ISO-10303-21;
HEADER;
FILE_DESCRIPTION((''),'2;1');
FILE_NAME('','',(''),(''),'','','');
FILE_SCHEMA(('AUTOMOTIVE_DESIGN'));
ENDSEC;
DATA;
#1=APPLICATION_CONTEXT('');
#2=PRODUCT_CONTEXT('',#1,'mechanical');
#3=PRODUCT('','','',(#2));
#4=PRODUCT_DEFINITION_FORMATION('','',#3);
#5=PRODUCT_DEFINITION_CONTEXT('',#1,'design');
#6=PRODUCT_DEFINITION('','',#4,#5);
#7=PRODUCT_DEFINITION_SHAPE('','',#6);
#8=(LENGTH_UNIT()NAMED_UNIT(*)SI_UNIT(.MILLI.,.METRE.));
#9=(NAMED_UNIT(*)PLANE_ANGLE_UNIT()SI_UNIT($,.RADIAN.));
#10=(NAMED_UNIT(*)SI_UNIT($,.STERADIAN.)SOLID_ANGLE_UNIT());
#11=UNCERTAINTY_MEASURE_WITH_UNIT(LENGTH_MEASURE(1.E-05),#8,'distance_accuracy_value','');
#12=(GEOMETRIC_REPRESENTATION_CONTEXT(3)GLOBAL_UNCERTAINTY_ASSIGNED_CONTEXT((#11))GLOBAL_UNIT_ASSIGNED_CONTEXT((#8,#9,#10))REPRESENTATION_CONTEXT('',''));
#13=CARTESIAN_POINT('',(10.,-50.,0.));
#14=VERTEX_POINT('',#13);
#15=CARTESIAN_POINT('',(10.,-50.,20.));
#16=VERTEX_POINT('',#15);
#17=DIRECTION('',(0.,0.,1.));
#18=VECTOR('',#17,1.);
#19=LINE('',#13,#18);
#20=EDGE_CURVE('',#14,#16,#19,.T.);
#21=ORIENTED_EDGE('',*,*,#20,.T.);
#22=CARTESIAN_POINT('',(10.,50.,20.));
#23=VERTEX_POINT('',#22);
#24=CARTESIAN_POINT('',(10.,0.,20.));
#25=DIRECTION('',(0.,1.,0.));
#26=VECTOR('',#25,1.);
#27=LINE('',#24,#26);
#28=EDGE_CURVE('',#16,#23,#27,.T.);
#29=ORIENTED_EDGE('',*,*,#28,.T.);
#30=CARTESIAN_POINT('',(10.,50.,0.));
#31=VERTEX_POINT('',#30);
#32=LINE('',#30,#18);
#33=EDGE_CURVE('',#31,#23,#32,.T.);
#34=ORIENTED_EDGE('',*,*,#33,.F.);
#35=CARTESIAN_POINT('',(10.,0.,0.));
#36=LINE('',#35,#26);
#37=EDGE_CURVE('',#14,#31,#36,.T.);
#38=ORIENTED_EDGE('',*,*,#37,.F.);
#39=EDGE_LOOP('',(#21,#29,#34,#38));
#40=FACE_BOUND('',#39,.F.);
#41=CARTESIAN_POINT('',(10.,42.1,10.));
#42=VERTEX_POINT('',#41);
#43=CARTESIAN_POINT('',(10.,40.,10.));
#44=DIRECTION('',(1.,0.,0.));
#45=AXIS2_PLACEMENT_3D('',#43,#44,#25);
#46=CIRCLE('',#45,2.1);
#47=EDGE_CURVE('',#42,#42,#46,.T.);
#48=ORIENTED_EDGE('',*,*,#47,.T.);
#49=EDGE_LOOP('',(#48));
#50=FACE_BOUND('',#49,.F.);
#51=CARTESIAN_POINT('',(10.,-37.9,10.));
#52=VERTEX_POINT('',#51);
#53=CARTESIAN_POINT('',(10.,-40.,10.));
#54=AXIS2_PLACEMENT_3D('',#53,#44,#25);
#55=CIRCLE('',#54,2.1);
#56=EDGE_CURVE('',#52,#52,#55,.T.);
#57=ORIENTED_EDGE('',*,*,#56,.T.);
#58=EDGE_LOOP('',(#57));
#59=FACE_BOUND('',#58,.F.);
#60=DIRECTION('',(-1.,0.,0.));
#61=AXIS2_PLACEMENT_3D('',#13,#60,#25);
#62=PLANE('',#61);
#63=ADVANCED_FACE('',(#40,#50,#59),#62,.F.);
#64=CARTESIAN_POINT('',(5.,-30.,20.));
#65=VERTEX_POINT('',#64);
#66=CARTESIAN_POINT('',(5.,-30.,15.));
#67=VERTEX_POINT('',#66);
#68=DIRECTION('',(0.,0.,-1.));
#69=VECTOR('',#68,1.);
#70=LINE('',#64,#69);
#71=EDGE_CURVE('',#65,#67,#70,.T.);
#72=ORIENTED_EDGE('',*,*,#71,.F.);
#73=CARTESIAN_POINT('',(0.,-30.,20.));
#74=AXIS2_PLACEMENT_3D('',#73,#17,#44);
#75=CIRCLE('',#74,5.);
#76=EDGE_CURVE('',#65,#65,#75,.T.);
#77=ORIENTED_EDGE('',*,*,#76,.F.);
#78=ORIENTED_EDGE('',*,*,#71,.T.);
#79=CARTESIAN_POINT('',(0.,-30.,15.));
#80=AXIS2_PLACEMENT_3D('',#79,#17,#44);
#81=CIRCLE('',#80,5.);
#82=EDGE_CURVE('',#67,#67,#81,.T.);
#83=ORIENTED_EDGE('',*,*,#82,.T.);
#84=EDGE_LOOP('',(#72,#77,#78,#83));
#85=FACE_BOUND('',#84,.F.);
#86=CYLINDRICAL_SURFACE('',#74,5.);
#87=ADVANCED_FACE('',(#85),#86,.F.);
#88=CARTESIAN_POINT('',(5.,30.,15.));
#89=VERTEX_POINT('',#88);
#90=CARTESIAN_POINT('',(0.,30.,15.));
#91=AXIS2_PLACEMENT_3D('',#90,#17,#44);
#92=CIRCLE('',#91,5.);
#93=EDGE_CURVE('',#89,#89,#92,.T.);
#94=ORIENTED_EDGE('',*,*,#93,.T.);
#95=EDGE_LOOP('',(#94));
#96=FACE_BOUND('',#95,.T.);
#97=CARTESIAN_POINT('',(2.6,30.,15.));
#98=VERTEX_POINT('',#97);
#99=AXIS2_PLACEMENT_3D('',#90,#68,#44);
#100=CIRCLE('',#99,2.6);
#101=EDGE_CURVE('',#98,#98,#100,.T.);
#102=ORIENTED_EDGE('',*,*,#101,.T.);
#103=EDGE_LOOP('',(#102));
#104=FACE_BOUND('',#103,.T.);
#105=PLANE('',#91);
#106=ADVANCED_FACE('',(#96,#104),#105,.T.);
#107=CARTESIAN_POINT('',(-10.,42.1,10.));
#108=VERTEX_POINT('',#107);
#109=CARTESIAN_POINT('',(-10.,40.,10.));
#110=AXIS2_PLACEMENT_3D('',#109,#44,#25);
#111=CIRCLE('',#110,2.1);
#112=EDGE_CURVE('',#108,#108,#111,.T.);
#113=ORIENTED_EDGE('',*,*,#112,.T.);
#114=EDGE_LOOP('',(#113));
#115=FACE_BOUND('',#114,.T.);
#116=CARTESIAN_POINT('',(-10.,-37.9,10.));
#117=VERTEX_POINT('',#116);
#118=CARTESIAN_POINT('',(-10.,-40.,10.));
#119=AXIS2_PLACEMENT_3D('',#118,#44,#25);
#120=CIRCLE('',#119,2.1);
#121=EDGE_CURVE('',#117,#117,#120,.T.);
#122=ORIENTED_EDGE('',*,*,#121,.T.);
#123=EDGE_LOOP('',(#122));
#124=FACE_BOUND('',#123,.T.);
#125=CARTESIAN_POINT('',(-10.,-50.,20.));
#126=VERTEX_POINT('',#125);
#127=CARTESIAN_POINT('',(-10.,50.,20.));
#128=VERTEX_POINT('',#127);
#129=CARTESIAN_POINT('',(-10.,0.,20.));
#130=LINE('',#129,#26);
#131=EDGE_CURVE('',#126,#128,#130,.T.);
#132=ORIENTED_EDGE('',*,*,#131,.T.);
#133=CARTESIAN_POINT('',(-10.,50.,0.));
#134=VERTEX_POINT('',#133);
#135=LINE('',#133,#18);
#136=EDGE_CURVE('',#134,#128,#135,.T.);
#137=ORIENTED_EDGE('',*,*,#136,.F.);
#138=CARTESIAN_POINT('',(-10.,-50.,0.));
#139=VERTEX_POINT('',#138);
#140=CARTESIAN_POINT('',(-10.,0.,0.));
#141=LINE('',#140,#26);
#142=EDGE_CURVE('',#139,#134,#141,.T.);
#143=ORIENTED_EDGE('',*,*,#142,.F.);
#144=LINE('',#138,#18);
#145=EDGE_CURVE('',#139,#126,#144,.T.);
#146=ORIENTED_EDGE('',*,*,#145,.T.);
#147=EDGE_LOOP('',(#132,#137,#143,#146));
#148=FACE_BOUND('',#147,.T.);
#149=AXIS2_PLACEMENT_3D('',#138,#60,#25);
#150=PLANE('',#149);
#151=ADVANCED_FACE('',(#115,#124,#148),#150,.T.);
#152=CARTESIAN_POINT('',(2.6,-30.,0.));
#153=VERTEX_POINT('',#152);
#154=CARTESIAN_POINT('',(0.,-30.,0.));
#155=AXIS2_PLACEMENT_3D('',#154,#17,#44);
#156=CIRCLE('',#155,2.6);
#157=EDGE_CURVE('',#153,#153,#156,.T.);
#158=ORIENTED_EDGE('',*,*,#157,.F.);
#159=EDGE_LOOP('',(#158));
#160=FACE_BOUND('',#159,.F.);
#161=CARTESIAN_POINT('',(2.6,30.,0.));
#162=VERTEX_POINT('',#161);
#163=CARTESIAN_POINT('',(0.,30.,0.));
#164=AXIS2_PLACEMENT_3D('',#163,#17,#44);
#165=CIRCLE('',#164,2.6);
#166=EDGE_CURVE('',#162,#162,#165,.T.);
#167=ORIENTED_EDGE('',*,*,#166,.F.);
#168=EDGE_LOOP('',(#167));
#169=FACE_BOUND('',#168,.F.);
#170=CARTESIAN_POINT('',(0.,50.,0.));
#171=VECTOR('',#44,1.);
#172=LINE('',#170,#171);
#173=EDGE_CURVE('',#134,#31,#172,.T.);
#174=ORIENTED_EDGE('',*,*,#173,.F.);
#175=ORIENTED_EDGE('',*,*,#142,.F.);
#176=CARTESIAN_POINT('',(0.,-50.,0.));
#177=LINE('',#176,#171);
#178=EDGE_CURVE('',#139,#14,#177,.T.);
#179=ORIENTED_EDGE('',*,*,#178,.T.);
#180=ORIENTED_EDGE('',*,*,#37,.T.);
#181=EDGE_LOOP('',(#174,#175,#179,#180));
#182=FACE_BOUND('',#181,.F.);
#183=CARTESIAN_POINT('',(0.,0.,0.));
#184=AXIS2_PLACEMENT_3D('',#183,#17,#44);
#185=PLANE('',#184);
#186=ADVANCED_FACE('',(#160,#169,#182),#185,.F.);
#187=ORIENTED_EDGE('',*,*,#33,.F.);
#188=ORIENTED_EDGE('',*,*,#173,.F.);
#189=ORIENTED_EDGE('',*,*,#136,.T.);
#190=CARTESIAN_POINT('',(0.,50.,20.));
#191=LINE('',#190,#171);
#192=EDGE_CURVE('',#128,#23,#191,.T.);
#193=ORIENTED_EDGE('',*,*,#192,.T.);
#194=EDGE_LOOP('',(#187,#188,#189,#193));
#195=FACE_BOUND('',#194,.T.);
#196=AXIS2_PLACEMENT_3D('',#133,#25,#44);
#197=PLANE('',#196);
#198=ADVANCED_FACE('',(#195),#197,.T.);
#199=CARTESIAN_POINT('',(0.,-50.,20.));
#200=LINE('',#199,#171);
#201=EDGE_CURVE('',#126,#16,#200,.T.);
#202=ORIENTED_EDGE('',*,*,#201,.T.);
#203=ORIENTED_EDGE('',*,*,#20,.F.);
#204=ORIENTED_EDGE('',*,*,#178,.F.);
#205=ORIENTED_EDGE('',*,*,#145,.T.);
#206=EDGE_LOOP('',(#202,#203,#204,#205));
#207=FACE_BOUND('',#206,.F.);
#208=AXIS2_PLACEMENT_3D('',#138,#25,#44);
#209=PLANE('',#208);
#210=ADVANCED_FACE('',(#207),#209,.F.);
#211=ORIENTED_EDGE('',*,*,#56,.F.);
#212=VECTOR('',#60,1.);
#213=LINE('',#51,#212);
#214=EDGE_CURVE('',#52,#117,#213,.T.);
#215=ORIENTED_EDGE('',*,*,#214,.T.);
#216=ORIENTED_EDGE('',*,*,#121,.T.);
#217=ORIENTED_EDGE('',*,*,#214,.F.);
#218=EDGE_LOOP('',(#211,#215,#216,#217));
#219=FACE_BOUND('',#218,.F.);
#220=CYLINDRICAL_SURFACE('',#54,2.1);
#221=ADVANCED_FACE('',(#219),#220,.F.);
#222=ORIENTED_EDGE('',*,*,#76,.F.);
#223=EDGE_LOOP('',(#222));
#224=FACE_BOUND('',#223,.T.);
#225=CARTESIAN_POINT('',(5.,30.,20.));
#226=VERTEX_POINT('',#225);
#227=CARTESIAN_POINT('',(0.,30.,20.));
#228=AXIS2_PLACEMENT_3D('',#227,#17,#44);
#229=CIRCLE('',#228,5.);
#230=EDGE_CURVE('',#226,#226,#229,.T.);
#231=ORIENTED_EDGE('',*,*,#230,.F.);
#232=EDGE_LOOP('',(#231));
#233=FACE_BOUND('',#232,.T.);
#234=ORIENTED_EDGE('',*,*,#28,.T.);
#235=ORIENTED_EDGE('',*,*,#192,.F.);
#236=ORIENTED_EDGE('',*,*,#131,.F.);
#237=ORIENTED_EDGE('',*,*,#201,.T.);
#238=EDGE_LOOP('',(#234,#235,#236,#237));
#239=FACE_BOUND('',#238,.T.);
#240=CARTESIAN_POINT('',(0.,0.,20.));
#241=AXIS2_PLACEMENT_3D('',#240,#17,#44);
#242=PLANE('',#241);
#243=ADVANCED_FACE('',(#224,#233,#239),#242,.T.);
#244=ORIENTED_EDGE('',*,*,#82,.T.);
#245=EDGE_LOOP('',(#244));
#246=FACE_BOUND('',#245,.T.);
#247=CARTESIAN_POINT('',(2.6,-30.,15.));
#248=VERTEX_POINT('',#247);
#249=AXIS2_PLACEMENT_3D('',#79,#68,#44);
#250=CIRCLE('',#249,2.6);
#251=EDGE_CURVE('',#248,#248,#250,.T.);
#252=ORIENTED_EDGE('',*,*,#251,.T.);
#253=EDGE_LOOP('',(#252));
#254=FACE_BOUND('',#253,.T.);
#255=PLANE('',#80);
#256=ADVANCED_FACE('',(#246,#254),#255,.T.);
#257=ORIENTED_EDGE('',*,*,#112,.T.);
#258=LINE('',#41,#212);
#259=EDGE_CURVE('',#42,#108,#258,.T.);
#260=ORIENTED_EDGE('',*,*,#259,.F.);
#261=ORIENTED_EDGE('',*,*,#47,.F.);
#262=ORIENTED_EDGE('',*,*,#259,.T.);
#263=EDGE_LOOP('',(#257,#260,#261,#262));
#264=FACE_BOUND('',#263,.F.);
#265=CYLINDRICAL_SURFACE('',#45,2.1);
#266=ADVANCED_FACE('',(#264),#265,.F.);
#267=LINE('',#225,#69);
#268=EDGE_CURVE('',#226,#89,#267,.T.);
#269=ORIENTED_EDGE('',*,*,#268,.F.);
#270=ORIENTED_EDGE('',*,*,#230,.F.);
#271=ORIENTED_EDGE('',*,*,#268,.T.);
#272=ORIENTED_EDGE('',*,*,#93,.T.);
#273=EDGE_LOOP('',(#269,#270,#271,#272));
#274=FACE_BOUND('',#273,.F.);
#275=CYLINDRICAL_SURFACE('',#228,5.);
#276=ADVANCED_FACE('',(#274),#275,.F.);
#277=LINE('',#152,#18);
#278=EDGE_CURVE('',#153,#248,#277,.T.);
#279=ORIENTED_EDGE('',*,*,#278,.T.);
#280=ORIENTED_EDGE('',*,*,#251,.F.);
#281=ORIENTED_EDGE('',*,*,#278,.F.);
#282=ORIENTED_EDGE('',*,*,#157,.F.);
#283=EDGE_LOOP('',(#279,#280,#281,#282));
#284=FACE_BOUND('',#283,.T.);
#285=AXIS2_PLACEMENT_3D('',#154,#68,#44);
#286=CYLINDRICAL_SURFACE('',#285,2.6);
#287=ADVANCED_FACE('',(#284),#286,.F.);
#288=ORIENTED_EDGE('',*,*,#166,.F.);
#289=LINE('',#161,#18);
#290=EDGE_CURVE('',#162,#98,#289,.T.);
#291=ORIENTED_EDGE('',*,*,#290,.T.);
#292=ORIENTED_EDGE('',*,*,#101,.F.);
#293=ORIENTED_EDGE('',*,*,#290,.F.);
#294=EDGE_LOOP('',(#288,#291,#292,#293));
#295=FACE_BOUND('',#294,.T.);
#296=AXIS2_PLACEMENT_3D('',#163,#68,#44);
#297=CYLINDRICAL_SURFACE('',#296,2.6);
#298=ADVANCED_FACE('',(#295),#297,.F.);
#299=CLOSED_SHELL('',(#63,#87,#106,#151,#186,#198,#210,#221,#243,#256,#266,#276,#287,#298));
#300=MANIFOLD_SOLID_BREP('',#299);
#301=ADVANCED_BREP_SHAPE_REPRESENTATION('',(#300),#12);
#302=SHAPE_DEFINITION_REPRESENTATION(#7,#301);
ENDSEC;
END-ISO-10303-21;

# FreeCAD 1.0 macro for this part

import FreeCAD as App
import Part
import Sketcher

V = App.Vector
Q = App.Units.Quantity

doc = App.newDocument("Part")
body = doc.addObject("PartDesign::Body", "Body")

sketch1 = doc.addObject("Sketcher::SketchObject", "Sketch")
body.addObject(sketch1)
sketch1.AttachmentSupport = (doc.XY_Plane, [""])
sketch1.MapMode = "FlatFace"
sketch1.addGeometry(Part.LineSegment(V(-10, 50, 0), V(-10, -50, 0)), False)
sketch1.addGeometry(Part.LineSegment(V(-10, -50, 0), V(10, -50, 0)), False)
sketch1.addGeometry(Part.LineSegment(V(10, -50, 0), V(10, 50, 0)), False)
sketch1.addGeometry(Part.LineSegment(V(10, 50, 0), V(-10, 50, 0)), False)
sketch1.addGeometry(Part.Circle(V(0, -30, 0), V(0, 0, 1), 2.6), False)
sketch1.addGeometry(Part.Circle(V(0, 30, 0), V(0, 0, 1), 2.6), False)
sketch1.addConstraint(Sketcher.Constraint("Coincident", 0, 2, 1, 1))
sketch1.addConstraint(Sketcher.Constraint("Coincident", 1, 2, 2, 1))
sketch1.addConstraint(Sketcher.Constraint("Coincident", 2, 2, 3, 1))
sketch1.addConstraint(Sketcher.Constraint("Coincident", 3, 2, 0, 1))
sketch1.addConstraint(Sketcher.Constraint("Vertical", 0))
sketch1.addConstraint(Sketcher.Constraint("Horizontal", 1))
sketch1.addConstraint(Sketcher.Constraint("Vertical", 2))
sketch1.addConstraint(Sketcher.Constraint("Horizontal", 3))
sketch1.addConstraint(Sketcher.Constraint("Equal", 4, 5))
sketch1.addConstraint(Sketcher.Constraint("Symmetric", 4, 3, 5, 3, -1, 1))
sketch1.addConstraint(Sketcher.Constraint("Symmetric", 0, 2, 2, 2, -1, 1))
sketch1.addConstraint(Sketcher.Constraint("PointOnObject", 4, 3, -2))
sketch1.addConstraint(Sketcher.Constraint("Diameter", 4, Q("5.2 mm")))
sketch1.addConstraint(Sketcher.Constraint("DistanceX", 1, 1, 1, 2, Q("20 mm")))
sketch1.addConstraint(Sketcher.Constraint("DistanceY", 0, 2, 0, 1, Q("100 mm")))
sketch1.addConstraint(Sketcher.Constraint("DistanceY", 4, 3, -1, 1, Q("30 mm")))
pad1 = doc.addObject("PartDesign::Pad", "Pad")
body.addObject(pad1)
pad1.Profile = sketch1
pad1.Length = 20

sketch2 = doc.addObject("Sketcher::SketchObject", "Sketch001")
body.addObject(sketch2)
sketch2.AttachmentSupport = (doc.XY_Plane, [""])
sketch2.MapMode = "FlatFace"
sketch2.AttachmentOffset = App.Placement(V(0, 0, 20), App.Rotation())
sketch2.addGeometry(Part.Circle(V(0, 30, 0), V(0, 0, 1), 5), False)
sketch2.addGeometry(Part.Circle(V(0, -30, 0), V(0, 0, 1), 5), False)
sketch2.addConstraint(Sketcher.Constraint("Equal", 0, 1))
sketch2.addConstraint(Sketcher.Constraint("Symmetric", 0, 3, 1, 3, -1, 1))
sketch2.addConstraint(Sketcher.Constraint("PointOnObject", 0, 3, -2))
sketch2.addConstraint(Sketcher.Constraint("Diameter", 0, Q("10 mm")))
sketch2.addConstraint(Sketcher.Constraint("DistanceY", -1, 1, 0, 3, Q("30 mm")))
pocket1 = doc.addObject("PartDesign::Pocket", "Pocket")
body.addObject(pocket1)
pocket1.Profile = sketch2
pocket1.Length = 5

sketch3 = doc.addObject("Sketcher::SketchObject", "Sketch002")
body.addObject(sketch3)
sketch3.AttachmentSupport = (doc.YZ_Plane, [""])
sketch3.MapMode = "FlatFace"
sketch3.AttachmentOffset = App.Placement(V(0, 0, 10), App.Rotation())
sketch3.addGeometry(Part.Circle(V(-40, 10, 0), V(0, 0, 1), 2.1), False)
sketch3.addGeometry(Part.Circle(V(40, 10, 0), V(0, 0, 1), 2.1), False)
sketch3.addConstraint(Sketcher.Constraint("Equal", 0, 1))
sketch3.addConstraint(Sketcher.Constraint("Symmetric", 0, 3, 1, 3, -2))
sketch3.addConstraint(Sketcher.Constraint("Diameter", 0, Q("4.2 mm")))
sketch3.addConstraint(Sketcher.Constraint("DistanceX", 0, 3, -1, 1, Q("40 mm")))
sketch3.addConstraint(Sketcher.Constraint("DistanceY", -1, 1, 0, 3, Q("10 mm")))
pocket2 = doc.addObject("PartDesign::Pocket", "Pocket001")
body.addObject(pocket2)
pocket2.Profile = sketch3
pocket2.Length = 25

doc.recompute()
